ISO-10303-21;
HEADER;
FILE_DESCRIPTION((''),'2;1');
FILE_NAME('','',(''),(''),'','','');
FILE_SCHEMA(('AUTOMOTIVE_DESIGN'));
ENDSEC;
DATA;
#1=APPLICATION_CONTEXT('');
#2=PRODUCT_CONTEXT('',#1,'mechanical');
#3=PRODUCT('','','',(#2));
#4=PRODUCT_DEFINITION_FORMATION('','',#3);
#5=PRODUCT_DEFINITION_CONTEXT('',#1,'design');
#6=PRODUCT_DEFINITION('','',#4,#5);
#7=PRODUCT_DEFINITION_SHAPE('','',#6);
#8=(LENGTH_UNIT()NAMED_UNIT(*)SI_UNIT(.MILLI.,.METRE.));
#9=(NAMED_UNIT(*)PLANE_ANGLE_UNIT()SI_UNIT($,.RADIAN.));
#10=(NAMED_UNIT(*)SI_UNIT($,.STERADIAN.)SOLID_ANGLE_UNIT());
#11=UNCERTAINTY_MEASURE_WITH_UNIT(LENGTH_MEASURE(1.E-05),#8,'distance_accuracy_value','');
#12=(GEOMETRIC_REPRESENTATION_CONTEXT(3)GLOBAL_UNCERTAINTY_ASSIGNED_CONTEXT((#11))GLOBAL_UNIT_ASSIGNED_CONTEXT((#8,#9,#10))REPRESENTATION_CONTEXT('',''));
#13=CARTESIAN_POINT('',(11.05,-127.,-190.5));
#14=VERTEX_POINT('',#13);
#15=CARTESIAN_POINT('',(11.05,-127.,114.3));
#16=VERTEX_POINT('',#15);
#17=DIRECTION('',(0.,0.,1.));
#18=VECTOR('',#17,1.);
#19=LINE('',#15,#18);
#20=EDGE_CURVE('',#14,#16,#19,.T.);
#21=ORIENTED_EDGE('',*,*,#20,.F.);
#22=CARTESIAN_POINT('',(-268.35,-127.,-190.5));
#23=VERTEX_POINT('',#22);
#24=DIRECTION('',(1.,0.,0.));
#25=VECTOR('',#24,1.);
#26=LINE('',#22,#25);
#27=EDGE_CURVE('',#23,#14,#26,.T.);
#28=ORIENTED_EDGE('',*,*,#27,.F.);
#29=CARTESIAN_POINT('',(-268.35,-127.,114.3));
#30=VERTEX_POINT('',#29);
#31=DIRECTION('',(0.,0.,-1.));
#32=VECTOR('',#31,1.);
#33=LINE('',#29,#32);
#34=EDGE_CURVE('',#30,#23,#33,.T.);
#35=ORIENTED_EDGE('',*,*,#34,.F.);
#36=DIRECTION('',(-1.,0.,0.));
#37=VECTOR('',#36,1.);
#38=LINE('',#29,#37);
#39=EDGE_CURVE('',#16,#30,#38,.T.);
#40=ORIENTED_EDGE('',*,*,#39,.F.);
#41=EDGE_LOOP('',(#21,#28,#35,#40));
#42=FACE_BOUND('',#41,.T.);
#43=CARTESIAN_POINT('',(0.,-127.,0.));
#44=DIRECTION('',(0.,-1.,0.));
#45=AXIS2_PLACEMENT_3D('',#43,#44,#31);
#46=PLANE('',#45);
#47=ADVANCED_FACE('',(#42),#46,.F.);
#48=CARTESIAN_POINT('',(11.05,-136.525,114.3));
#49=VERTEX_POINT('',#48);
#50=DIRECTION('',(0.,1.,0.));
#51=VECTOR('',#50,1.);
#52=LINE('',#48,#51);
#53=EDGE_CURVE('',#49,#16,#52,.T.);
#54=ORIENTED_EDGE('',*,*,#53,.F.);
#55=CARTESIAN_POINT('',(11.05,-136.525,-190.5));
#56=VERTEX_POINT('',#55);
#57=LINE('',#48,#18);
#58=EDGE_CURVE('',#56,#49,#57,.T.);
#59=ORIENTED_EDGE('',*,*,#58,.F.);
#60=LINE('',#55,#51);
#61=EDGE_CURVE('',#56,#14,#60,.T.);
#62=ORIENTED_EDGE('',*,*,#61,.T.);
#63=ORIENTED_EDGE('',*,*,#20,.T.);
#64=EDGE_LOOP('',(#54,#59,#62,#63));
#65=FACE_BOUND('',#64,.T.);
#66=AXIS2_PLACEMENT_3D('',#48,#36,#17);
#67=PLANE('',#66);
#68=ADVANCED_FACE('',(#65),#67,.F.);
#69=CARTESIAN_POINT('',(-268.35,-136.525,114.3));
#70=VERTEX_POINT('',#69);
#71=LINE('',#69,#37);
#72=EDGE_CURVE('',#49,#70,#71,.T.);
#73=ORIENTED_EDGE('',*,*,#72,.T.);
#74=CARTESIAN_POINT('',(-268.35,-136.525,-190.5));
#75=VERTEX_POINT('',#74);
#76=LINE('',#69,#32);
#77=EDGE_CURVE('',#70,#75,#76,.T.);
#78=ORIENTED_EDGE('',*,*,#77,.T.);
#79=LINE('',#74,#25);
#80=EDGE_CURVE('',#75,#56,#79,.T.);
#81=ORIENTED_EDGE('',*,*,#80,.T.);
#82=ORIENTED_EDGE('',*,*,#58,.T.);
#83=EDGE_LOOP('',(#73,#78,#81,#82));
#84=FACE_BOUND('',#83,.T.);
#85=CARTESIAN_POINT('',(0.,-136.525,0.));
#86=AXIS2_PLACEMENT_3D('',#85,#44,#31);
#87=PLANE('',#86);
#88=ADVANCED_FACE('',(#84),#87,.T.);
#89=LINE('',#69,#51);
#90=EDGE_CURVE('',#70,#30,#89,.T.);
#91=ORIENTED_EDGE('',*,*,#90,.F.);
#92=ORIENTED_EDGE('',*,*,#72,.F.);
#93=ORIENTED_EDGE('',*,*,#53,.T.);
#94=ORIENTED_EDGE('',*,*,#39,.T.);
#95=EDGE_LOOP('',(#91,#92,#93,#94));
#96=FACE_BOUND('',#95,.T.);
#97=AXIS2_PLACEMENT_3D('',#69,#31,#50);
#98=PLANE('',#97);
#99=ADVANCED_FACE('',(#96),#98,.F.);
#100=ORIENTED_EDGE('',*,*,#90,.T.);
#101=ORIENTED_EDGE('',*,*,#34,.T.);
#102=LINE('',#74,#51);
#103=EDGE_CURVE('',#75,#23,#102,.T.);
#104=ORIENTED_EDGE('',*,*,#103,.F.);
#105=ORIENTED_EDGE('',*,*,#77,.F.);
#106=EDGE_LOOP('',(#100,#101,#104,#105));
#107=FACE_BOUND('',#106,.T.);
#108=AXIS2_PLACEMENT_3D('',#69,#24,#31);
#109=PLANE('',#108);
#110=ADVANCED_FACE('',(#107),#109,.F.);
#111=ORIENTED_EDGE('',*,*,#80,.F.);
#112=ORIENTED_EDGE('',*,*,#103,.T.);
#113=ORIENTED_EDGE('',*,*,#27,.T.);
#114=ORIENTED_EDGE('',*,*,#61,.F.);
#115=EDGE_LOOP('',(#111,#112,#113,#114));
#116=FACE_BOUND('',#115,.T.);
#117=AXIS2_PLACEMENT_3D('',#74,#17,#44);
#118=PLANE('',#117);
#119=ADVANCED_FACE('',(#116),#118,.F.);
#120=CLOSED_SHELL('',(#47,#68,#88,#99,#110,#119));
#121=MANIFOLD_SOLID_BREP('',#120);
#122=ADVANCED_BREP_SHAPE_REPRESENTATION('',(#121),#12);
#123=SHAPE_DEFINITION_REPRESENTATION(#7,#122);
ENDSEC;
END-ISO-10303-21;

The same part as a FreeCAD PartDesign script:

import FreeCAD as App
import Part
import Sketcher
from FreeCAD import Vector
Q = App.Units.Quantity


def add_polygon(sketch, points):
    """Adds a closed chain of lines whose ends are joined by coincident constraints."""
    first, n = sketch.GeometryCount, len(points)
    for a, b in zip(points, points[1:] + points[:1]):
        sketch.addGeometry(Part.LineSegment(App.Vector(*a, 0), App.Vector(*b, 0)), False)
    for i in range(n):
        sketch.addConstraint(Sketcher.Constraint("Coincident", first + i, 2, first + (i + 1) % n, 1))

doc = App.newDocument("Part")
body = doc.addObject("PartDesign::Body", "Body")

# Sketch on XZ plane
sketch1 = body.newObject("Sketcher::SketchObject", "Sketch")
sketch1.AttachmentSupport = (doc.getObject("XZ_Plane"), [""])
sketch1.MapMode = "FlatFace"
sketch1.AttachmentOffset = App.Placement(Vector(0, 0, 5 * 25.4), App.Rotation())
add_polygon(sketch1, [(-268, 114), (-268, -190), (11, -190), (11, 114)])  # lines 0-3
sketch1.addConstraint(Sketcher.Constraint("Vertical", 0))
sketch1.addConstraint(Sketcher.Constraint("Horizontal", 1))
sketch1.addConstraint(Sketcher.Constraint("Vertical", 2))
sketch1.addConstraint(Sketcher.Constraint("Horizontal", 3))
sketch1.addConstraint(Sketcher.Constraint("DistanceX", 1, 1, 1, 2, Q("11 in")))
sketch1.addConstraint(Sketcher.Constraint("DistanceY", 0, 2, 0, 1, Q("12 in")))
sketch1.addConstraint(Sketcher.Constraint("DistanceY", 0, 2, -1, 1, Q("7.5 in")))
sketch1.addConstraint(Sketcher.Constraint("DistanceX", 0, 2, -1, 1, Q("268.35 mm")))
pad1 = body.newObject("PartDesign::Pad", "Pad")
pad1.Profile = sketch1
pad1.Length = Q("0.375 in")

doc.recompute()
